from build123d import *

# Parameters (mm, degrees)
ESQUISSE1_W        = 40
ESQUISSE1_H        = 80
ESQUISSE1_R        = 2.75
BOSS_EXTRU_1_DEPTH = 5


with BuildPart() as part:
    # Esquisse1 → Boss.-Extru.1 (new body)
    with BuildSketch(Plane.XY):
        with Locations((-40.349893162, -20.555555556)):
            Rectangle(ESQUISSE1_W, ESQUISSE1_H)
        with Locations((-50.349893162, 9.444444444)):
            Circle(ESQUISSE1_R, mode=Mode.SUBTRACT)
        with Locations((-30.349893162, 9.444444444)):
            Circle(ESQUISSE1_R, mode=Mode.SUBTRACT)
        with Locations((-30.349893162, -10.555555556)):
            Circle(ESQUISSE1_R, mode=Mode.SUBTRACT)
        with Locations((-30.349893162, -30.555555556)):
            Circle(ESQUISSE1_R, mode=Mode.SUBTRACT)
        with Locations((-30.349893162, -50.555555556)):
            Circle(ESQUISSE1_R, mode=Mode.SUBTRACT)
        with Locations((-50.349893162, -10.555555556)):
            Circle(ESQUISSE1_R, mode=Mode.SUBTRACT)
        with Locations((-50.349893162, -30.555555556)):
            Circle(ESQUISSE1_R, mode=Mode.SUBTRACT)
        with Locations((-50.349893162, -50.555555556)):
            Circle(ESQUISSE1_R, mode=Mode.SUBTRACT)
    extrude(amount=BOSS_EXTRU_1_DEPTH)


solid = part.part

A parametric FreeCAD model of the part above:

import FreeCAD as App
import Part
import Sketcher
from FreeCAD import Vector

doc = App.newDocument("Part")
body = doc.addObject("PartDesign::Body", "Body")

sketch1 = body.newObject("Sketcher::SketchObject", "Sketch")
sketch1.AttachmentSupport = (doc.getObject("XY_Plane"), [""])
sketch1.MapMode = "FlatFace"
sketch1.addGeometry([
    Part.LineSegment(Vector(-60.3, 19.4, 0), Vector(-60.3, -60.6, 0)),
    Part.LineSegment(Vector(-60.3, -60.6, 0), Vector(-20.3, -60.6, 0)),
    Part.LineSegment(Vector(-20.3, -60.6, 0), Vector(-20.3, 19.4, 0)),
    Part.LineSegment(Vector(-20.3, 19.4, 0), Vector(-60.3, 19.4, 0)),
    Part.Circle(Vector(-50.3, -50.6, 0), Vector(0, 0, 1), 2.8),
    Part.Circle(Vector(-50.3, -30.6, 0), Vector(0, 0, 1), 2.8),
    Part.Circle(Vector(-30.3, -50.6, 0), Vector(0, 0, 1), 2.8),
    Part.Circle(Vector(-30.3, -30.6, 0), Vector(0, 0, 1), 2.8),
    Part.Circle(Vector(-50.3, -10.6, 0), Vector(0, 0, 1), 2.8),
    Part.Circle(Vector(-50.3, 9.4, 0), Vector(0, 0, 1), 2.8),
    Part.Circle(Vector(-30.3, -10.6, 0), Vector(0, 0, 1), 2.8),
    Part.Circle(Vector(-30.3, 9.4, 0), Vector(0, 0, 1), 2.8),
], False)
sketch1.addConstraint([
    Sketcher.Constraint("Coincident", 0, 2, 1, 1),
    Sketcher.Constraint("Coincident", 1, 2, 2, 1),
    Sketcher.Constraint("Coincident", 2, 2, 3, 1),
    Sketcher.Constraint("Coincident", 3, 2, 0, 1),
    Sketcher.Constraint("Vertical", 0),
    Sketcher.Constraint("Horizontal", 1),
    Sketcher.Constraint("Vertical", 2),
    Sketcher.Constraint("Horizontal", 3),
    Sketcher.Constraint("Equal", 4, 5),
    Sketcher.Constraint("Equal", 5, 6),
    Sketcher.Constraint("Equal", 6, 7),
    Sketcher.Constraint("Equal", 7, 8),
    Sketcher.Constraint("Equal", 8, 9),
    Sketcher.Constraint("Equal", 9, 10),
    Sketcher.Constraint("Equal", 10, 11),
    Sketcher.Constraint("Horizontal", 4, 3, 6, 3),
    Sketcher.Constraint("Horizontal", 5, 3, 7, 3),
    Sketcher.Constraint("Horizontal", 8, 3, 10, 3),
    Sketcher.Constraint("Horizontal", 9, 3, 11, 3),
    Sketcher.Constraint("Vertical", 4, 3, 5, 3),
    Sketcher.Constraint("Vertical", 6, 3, 7, 3),
    Sketcher.Constraint("Vertical", 5, 3, 8, 3),
    Sketcher.Constraint("Vertical", 8, 3, 9, 3),
    Sketcher.Constraint("Vertical", 7, 3, 10, 3),
    Sketcher.Constraint("Vertical", 10, 3, 11, 3),
    Sketcher.Constraint("Diameter", 4, 5.5),
    Sketcher.Constraint("DistanceX", 1, 1, 1, 2, 40.0),
    Sketcher.Constraint("DistanceY", 0, 2, 0, 1, 80.0),
    Sketcher.Constraint("DistanceY", 4, 3, 5, 3, 20.0),
    Sketcher.Constraint("DistanceX", 4, 3, 6, 3, 20.0),
    Sketcher.Constraint("DistanceY", 5, 3, 8, 3, 20.0),
    Sketcher.Constraint("DistanceY", 8, 3, 9, 3, 20.0),
    Sketcher.Constraint("DistanceX", 0, 2, 4, 3, 10.0),
    Sketcher.Constraint("DistanceY", 0, 2, 4, 3, 10.0),
    Sketcher.Constraint("DistanceX", 4, 3, -1, 1, 50.349893),
    Sketcher.Constraint("DistanceY", 4, 3, -1, 1, 50.555556),
])
pad1 = body.newObject("PartDesign::Pad", "Pad")
pad1.Profile = sketch1
pad1.Length = 5

doc.recompute()
